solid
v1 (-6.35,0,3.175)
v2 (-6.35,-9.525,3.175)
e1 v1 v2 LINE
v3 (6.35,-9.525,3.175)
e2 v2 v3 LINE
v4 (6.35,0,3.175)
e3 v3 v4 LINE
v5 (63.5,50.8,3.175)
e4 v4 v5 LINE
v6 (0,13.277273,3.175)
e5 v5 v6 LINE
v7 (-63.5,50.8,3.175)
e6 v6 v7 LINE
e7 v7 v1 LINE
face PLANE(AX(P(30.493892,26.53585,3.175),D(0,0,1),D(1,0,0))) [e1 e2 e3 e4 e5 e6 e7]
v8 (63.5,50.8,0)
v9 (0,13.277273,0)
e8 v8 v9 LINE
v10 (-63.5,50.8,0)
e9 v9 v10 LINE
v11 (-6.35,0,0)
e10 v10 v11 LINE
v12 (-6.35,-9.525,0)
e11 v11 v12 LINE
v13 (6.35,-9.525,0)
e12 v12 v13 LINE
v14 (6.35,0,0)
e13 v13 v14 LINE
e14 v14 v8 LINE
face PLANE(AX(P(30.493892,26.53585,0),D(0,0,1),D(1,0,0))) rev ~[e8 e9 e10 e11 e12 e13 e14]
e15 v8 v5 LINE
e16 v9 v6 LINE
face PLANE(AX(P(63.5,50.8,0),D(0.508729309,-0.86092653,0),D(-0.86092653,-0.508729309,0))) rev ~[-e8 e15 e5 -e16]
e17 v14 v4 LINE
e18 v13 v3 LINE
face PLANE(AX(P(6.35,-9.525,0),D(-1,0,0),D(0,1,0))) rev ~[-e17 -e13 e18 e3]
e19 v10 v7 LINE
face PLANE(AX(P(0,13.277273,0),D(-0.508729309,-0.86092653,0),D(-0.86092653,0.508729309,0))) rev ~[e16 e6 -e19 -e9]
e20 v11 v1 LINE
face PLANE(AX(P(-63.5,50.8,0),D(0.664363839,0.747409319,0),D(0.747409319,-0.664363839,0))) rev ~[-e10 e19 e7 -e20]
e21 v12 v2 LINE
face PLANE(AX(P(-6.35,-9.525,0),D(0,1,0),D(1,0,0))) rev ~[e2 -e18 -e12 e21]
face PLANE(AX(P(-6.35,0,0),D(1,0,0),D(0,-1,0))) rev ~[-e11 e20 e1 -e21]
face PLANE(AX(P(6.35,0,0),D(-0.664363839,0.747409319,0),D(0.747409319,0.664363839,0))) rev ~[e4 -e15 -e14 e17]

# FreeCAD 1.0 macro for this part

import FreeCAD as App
import Part
import Sketcher
from FreeCAD import Vector
Q = App.Units.Quantity

doc = App.newDocument("Part")
params = doc.addObject("Spreadsheet::Sheet", "Params")
for row, (alias, value) in enumerate([
    ("sketch1_width", "0.5 in"),
    ("sketch1_height", "0.375 in"),
    ("pad1_length", "0.125 in"),
], start=1):
    params.set(f"A{row}", alias)
    params.set(f"B{row}", "=" + value)
    params.setAlias(f"B{row}", alias)

body = doc.addObject("PartDesign::Body", "Body")

sketch1 = body.newObject("Sketcher::SketchObject", "Sketch")
sketch1.AttachmentSupport = (doc.getObject("XY_Plane"), [""])
sketch1.MapMode = "FlatFace"
sketch1.addGeometry(Part.LineSegment(Vector(6, 0, 0), Vector(64, 51, 0)), False)
sketch1.addGeometry(Part.LineSegment(Vector(64, 51, 0), Vector(0, 13, 0)), False)
sketch1.addGeometry(Part.LineSegment(Vector(0, 13, 0), Vector(-64, 51, 0)), False)
sketch1.addGeometry(Part.LineSegment(Vector(-64, 51, 0), Vector(-6, 0, 0)), False)
sketch1.addGeometry(Part.LineSegment(Vector(-6, 0, 0), Vector(-6, -10, 0)), False)
sketch1.addGeometry(Part.LineSegment(Vector(-6, -10, 0), Vector(6, -10, 0)), False)
sketch1.addGeometry(Part.LineSegment(Vector(6, -10, 0), Vector(6, 0, 0)), False)
sketch1.addConstraint(Sketcher.Constraint("Coincident", 0, 2, 1, 1))
sketch1.addConstraint(Sketcher.Constraint("Coincident", 1, 2, 2, 1))
sketch1.addConstraint(Sketcher.Constraint("Coincident", 2, 2, 3, 1))
sketch1.addConstraint(Sketcher.Constraint("Coincident", 3, 2, 4, 1))
sketch1.addConstraint(Sketcher.Constraint("Coincident", 4, 2, 5, 1))
sketch1.addConstraint(Sketcher.Constraint("Coincident", 5, 2, 6, 1))
sketch1.addConstraint(Sketcher.Constraint("Coincident", 6, 2, 0, 1))
sketch1.addConstraint(Sketcher.Constraint("Vertical", 4))
sketch1.addConstraint(Sketcher.Constraint("Horizontal", 5))
sketch1.addConstraint(Sketcher.Constraint("Vertical", 6))
sketch1.addConstraint(Sketcher.Constraint("Symmetric", 3, 2, 6, 2, -1, 1))
sketch1.addConstraint(Sketcher.Constraint("Symmetric", 0, 2, 2, 2, -2))
sketch1.addConstraint(Sketcher.Constraint("PointOnObject", 1, 2, -2))
sketch1.addConstraint(Sketcher.Constraint("PointOnObject", 3, 2, -1))
sketch1.addConstraint(Sketcher.Constraint("DistanceX", 5, 1, 5, 2, Q("0.5 in")))
sketch1.addConstraint(Sketcher.Constraint("DistanceY", -1, 1, 0, 2, Q("2 in")))
sketch1.addConstraint(Sketcher.Constraint("DistanceX", 2, 2, 0, 2, Q("5 in")))
sketch1.addConstraint(Sketcher.Constraint("DistanceY", 4, 2, 4, 1, Q("0.375 in")))
sketch1.addConstraint(Sketcher.Constraint("Distance", 1, Q("73.757746 mm")))
sketch1.setExpression("Constraints[14]", "Params.sketch1_width")
sketch1.setExpression("Constraints[17]", "Params.sketch1_height")
pad1 = body.newObject("PartDesign::Pad", "Pad")
pad1.Profile = sketch1
pad1.setExpression("Length", "Params.pad1_length")

doc.recompute()
